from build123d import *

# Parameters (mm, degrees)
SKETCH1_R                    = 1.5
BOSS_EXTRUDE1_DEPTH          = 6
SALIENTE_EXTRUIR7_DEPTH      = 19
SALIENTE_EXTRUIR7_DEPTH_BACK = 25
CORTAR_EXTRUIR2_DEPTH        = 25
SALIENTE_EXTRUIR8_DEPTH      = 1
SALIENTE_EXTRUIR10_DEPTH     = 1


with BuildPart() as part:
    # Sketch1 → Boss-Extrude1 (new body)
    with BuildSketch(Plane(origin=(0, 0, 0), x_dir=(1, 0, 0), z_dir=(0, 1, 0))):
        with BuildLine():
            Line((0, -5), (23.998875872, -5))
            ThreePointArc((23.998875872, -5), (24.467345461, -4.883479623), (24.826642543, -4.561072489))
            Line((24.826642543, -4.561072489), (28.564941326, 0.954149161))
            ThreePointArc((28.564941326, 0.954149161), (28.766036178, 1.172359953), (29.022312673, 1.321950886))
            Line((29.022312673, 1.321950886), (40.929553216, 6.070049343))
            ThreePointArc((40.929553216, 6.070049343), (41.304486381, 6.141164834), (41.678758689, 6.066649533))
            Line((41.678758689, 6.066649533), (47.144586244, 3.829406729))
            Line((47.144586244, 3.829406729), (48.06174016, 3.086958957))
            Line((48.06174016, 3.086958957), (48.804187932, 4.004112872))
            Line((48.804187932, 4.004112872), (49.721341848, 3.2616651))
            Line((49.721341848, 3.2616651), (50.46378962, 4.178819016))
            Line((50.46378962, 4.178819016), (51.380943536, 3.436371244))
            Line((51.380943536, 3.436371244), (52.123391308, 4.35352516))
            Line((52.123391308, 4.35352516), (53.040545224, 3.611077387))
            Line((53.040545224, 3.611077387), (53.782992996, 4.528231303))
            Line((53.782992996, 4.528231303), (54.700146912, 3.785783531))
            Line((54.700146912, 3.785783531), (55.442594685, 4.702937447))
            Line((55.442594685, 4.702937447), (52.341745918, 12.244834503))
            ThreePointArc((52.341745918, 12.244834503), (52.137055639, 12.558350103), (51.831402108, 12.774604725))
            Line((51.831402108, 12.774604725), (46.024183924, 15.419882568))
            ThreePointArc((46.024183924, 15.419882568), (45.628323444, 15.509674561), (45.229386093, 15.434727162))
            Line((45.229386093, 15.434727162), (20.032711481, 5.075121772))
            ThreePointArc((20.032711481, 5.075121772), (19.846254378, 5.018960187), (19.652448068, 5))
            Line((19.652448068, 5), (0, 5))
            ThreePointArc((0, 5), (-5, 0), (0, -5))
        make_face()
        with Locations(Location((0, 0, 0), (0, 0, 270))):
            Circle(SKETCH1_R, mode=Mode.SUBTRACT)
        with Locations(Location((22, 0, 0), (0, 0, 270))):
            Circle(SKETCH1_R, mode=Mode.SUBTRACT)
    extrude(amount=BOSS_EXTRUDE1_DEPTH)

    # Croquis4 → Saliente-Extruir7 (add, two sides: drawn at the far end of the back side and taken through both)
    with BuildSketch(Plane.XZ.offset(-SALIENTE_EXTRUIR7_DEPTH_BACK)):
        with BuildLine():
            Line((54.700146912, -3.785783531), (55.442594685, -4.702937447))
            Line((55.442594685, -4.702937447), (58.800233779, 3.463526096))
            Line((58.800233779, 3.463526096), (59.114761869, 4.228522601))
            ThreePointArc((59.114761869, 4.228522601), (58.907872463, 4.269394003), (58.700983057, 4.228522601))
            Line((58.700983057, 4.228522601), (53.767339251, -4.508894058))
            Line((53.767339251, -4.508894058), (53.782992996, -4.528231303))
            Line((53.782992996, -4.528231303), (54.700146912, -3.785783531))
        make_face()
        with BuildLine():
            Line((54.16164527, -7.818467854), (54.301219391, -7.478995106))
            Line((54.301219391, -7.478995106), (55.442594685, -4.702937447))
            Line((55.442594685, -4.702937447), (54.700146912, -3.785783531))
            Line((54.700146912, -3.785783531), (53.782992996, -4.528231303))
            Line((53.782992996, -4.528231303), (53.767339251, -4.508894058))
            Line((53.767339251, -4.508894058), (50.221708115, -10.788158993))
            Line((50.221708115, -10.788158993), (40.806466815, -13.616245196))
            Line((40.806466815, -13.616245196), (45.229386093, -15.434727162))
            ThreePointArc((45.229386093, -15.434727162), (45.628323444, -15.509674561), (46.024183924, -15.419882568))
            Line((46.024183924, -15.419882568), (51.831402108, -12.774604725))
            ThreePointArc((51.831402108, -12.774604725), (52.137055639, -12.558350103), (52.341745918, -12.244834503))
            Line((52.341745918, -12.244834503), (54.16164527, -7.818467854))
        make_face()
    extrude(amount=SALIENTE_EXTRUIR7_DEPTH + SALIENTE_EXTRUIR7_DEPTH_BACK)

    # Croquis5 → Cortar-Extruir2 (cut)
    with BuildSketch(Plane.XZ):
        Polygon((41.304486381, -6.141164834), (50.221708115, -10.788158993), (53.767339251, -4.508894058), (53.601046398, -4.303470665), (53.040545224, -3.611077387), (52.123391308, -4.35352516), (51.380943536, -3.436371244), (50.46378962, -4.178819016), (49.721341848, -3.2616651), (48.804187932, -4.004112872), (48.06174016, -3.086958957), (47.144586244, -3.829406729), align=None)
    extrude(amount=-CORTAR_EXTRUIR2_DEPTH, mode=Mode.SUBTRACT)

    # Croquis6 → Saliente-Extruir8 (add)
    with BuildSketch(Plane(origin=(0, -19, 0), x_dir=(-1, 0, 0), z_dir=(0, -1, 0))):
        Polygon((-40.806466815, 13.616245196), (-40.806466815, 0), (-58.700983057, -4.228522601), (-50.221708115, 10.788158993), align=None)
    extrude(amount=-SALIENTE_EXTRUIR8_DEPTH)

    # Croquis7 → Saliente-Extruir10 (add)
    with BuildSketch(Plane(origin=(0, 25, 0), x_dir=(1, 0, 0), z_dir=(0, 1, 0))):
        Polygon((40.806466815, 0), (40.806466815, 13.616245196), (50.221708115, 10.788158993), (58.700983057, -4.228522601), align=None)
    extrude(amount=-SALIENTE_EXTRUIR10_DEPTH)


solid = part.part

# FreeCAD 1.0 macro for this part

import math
import FreeCAD as App
import Part
import Sketcher
Q = App.Units.Quantity

doc = App.newDocument("Part")
body = doc.addObject("PartDesign::Body", "Body")

# Sketch on XZ plane
sketch1 = doc.addObject("Sketcher::SketchObject", "Sketch")
body.addObject(sketch1)
sketch1.AttachmentSupport = (doc.XZ_Plane, [""])
sketch1.MapMode = "FlatFace"
sketch1.addGeometry(Part.LineSegment(App.Vector(0, 5, 0), App.Vector(24, 5, 0)), False)
sketch1.addGeometry(Part.ArcOfCircle(Part.Circle(App.Vector(24, 4, 0), App.Vector(0, 0, 1), 1), math.radians(34), math.radians(90)), False)
sketch1.addGeometry(Part.LineSegment(App.Vector(24.83, 4.56, 0), App.Vector(28.56, -0.95, 0)), False)
sketch1.addGeometry(Part.ArcOfCircle(Part.Circle(App.Vector(29.39, -0.39, 0), App.Vector(0, 0, 1), 1), math.radians(-146), math.radians(-112)), False)
sketch1.addGeometry(Part.LineSegment(App.Vector(29.02, -1.32, 0), App.Vector(40.93, -6.07, 0)), False)
sketch1.addGeometry(Part.ArcOfCircle(Part.Circle(App.Vector(41.3, -5.14, 0), App.Vector(0, 0, 1), 1), math.radians(-112), math.radians(-68)), False)
sketch1.addGeometry(Part.LineSegment(App.Vector(41.68, -6.07, 0), App.Vector(47.14, -3.83, 0)), False)
sketch1.addGeometry(Part.LineSegment(App.Vector(47.14, -3.83, 0), App.Vector(48.06, -3.09, 0)), False)
sketch1.addGeometry(Part.LineSegment(App.Vector(48.06, -3.09, 0), App.Vector(48.8, -4, 0)), False)
sketch1.addGeometry(Part.LineSegment(App.Vector(48.8, -4, 0), App.Vector(49.72, -3.26, 0)), False)
sketch1.addGeometry(Part.LineSegment(App.Vector(49.72, -3.26, 0), App.Vector(50.46, -4.18, 0)), False)
sketch1.addGeometry(Part.LineSegment(App.Vector(50.46, -4.18, 0), App.Vector(51.38, -3.44, 0)), False)
sketch1.addGeometry(Part.LineSegment(App.Vector(51.38, -3.44, 0), App.Vector(52.12, -4.35, 0)), False)
sketch1.addGeometry(Part.LineSegment(App.Vector(52.12, -4.35, 0), App.Vector(53.04, -3.61, 0)), False)
sketch1.addGeometry(Part.LineSegment(App.Vector(53.04, -3.61, 0), App.Vector(53.78, -4.53, 0)), False)
sketch1.addGeometry(Part.LineSegment(App.Vector(53.78, -4.53, 0), App.Vector(54.7, -3.79, 0)), False)
sketch1.addGeometry(Part.LineSegment(App.Vector(54.7, -3.79, 0), App.Vector(55.44, -4.7, 0)), False)
sketch1.addGeometry(Part.LineSegment(App.Vector(55.44, -4.7, 0), App.Vector(52.34, -12.24, 0)), False)
sketch1.addGeometry(Part.ArcOfCircle(Part.Circle(App.Vector(51.42, -11.86, 0), App.Vector(0, 0, 1), 1), math.radians(-66), math.radians(-22)), False)
sketch1.addGeometry(Part.LineSegment(App.Vector(51.83, -12.77, 0), App.Vector(46.02, -15.42, 0)), False)
sketch1.addGeometry(Part.ArcOfCircle(Part.Circle(App.Vector(45.61, -14.51, 0), App.Vector(0, 0, 1), 1), math.radians(-112), math.radians(-66)), False)
sketch1.addGeometry(Part.LineSegment(App.Vector(45.23, -15.43, 0), App.Vector(20.03, -5.08, 0)), False)
sketch1.addGeometry(Part.ArcOfCircle(Part.Circle(App.Vector(19.65, -6, 0), App.Vector(0, 0, 1), 1), math.radians(68), math.radians(90)), False)
sketch1.addGeometry(Part.LineSegment(App.Vector(19.65, -5, 0), App.Vector(0, -5, 0)), False)
sketch1.addGeometry(Part.ArcOfCircle(Part.Circle(App.Vector(0, 0, 0), App.Vector(0, 0, 1), 5), math.radians(90), math.radians(270)), False)
sketch1.addGeometry(Part.Circle(App.Vector(0, 0, 0), App.Vector(0, 0, 1), 1.5), False)
sketch1.addGeometry(Part.Circle(App.Vector(22, 0, 0), App.Vector(0, 0, 1), 1.5), False)
sketch1.addConstraint(Sketcher.Constraint("Tangent", 0, 2, 1, 2))
sketch1.addConstraint(Sketcher.Constraint("Tangent", 1, 1, 2, 1))
sketch1.addConstraint(Sketcher.Constraint("Tangent", 2, 2, 3, 1))
sketch1.addConstraint(Sketcher.Constraint("Tangent", 3, 2, 4, 1))
sketch1.addConstraint(Sketcher.Constraint("Tangent", 4, 2, 5, 1))
sketch1.addConstraint(Sketcher.Constraint("Tangent", 5, 2, 6, 1))
sketch1.addConstraint(Sketcher.Constraint("Coincident", 6, 2, 7, 1))
sketch1.addConstraint(Sketcher.Constraint("Coincident", 7, 2, 8, 1))
sketch1.addConstraint(Sketcher.Constraint("Coincident", 8, 2, 9, 1))
sketch1.addConstraint(Sketcher.Constraint("Coincident", 9, 2, 10, 1))
sketch1.addConstraint(Sketcher.Constraint("Coincident", 10, 2, 11, 1))
sketch1.addConstraint(Sketcher.Constraint("Coincident", 11, 2, 12, 1))
sketch1.addConstraint(Sketcher.Constraint("Coincident", 12, 2, 13, 1))
sketch1.addConstraint(Sketcher.Constraint("Coincident", 13, 2, 14, 1))
sketch1.addConstraint(Sketcher.Constraint("Coincident", 14, 2, 15, 1))
sketch1.addConstraint(Sketcher.Constraint("Coincident", 15, 2, 16, 1))
sketch1.addConstraint(Sketcher.Constraint("Coincident", 16, 2, 17, 1))
sketch1.addConstraint(Sketcher.Constraint("Tangent", 17, 2, 18, 2))
sketch1.addConstraint(Sketcher.Constraint("Tangent", 18, 1, 19, 1))
sketch1.addConstraint(Sketcher.Constraint("Tangent", 19, 2, 20, 2))
sketch1.addConstraint(Sketcher.Constraint("Tangent", 20, 1, 21, 1))
sketch1.addConstraint(Sketcher.Constraint("Tangent", 21, 2, 22, 1))
sketch1.addConstraint(Sketcher.Constraint("Tangent", 22, 2, 23, 1))
sketch1.addConstraint(Sketcher.Constraint("Tangent", 23, 2, 24, 2))
sketch1.addConstraint(Sketcher.Constraint("Tangent", 24, 1, 0, 1))
sketch1.addConstraint(Sketcher.Constraint("Horizontal", 0))
sketch1.addConstraint(Sketcher.Constraint("Horizontal", 23))
sketch1.addConstraint(Sketcher.Constraint("Coincident", 24, 3, -1, 1))
sketch1.addConstraint(Sketcher.Constraint("Coincident", 25, 3, -1, 1))
sketch1.addConstraint(Sketcher.Constraint("Equal", 1, 3))
sketch1.addConstraint(Sketcher.Constraint("Equal", 3, 5))
sketch1.addConstraint(Sketcher.Constraint("Equal", 5, 18))
sketch1.addConstraint(Sketcher.Constraint("Equal", 18, 20))
sketch1.addConstraint(Sketcher.Constraint("Equal", 20, 22))
sketch1.addConstraint(Sketcher.Constraint("Equal", 25, 26))
sketch1.addConstraint(Sketcher.Constraint("PointOnObject", 26, 3, -1))
sketch1.addConstraint(Sketcher.Constraint("Perpendicular", 7, 8))
sketch1.addConstraint(Sketcher.Constraint("Perpendicular", 8, 9))
sketch1.addConstraint(Sketcher.Constraint("Perpendicular", 9, 10))
sketch1.addConstraint(Sketcher.Constraint("Perpendicular", 10, 11))
sketch1.addConstraint(Sketcher.Constraint("Perpendicular", 11, 12))
sketch1.addConstraint(Sketcher.Constraint("Perpendicular", 12, 13))
sketch1.addConstraint(Sketcher.Constraint("Perpendicular", 13, 14))
sketch1.addConstraint(Sketcher.Constraint("Perpendicular", 14, 15))
sketch1.addConstraint(Sketcher.Constraint("Perpendicular", 15, 16))
sketch1.addConstraint(Sketcher.Constraint("Perpendicular", 17, 21))
sketch1.addConstraint(Sketcher.Constraint("Equal", 7, 8))
sketch1.addConstraint(Sketcher.Constraint("Equal", 8, 9))
sketch1.addConstraint(Sketcher.Constraint("Equal", 9, 10))
sketch1.addConstraint(Sketcher.Constraint("Equal", 10, 11))
sketch1.addConstraint(Sketcher.Constraint("Equal", 11, 12))
sketch1.addConstraint(Sketcher.Constraint("Equal", 12, 13))
sketch1.addConstraint(Sketcher.Constraint("Equal", 13, 14))
sketch1.addConstraint(Sketcher.Constraint("Equal", 14, 15))
sketch1.addConstraint(Sketcher.Constraint("Equal", 15, 16))
sketch1.addConstraint(Sketcher.Constraint("Diameter", 25, Q("3 mm")))
sketch1.addConstraint(Sketcher.Constraint("Radius", 1, Q("1 mm")))
sketch1.addConstraint(Sketcher.Constraint("Radius", 24, Q("5 mm")))
sketch1.addConstraint(Sketcher.Constraint("DistanceX", -1, 1, 26, 3, Q("22 mm")))
sketch1.addConstraint(Sketcher.Constraint("Angle", 2, Q("-55.87 deg")))
sketch1.addConstraint(Sketcher.Constraint("Angle", 4, Q("-21.74 deg")))
sketch1.addConstraint(Sketcher.Constraint("Angle", 6, Q("22.26 deg")))
sketch1.addConstraint(Sketcher.Constraint("Angle", 17, Q("-112.35 deg")))
sketch1.addConstraint(Sketcher.Constraint("Angle", 19, Q("-155.51 deg")))
sketch1.addConstraint(Sketcher.Constraint("Distance", 7, Q("1.18 mm")))
sketch1.addConstraint(Sketcher.Constraint("DistanceX", 23, 2, 23, 1, Q("19.652448 mm")))
sketch1.addConstraint(Sketcher.Constraint("DistanceY", 5, 3, 3, 3, Q("4.748098 mm")))
sketch1.addConstraint(Sketcher.Constraint("DistanceX", 5, 3, 20, 3, Q("4.309701 mm")))
sketch1.addConstraint(Sketcher.Constraint("DistanceX", 22, 3, 5, 3, Q("21.6475 mm")))
sketch1.addConstraint(Sketcher.Constraint("DistanceX", 1, 1, 2, 2, Q("3.738299 mm")))
sketch1.addConstraint(Sketcher.Constraint("DistanceX", 6, 2, 8, 2, Q("1.659602 mm")))
sketch1.addConstraint(Sketcher.Constraint("DistanceY", 18, 3, -1, 1, Q("11.864571 mm")))
pad1 = doc.addObject("PartDesign::Pad", "Pad")
body.addObject(pad1)
pad1.Profile = sketch1
pad1.Length = 6
pad1.Reversed = True

# Sketch on XZ plane
sketch2 = doc.addObject("Sketcher::SketchObject", "Sketch001")
body.addObject(sketch2)
sketch2.AttachmentSupport = (doc.XZ_Plane, [""])
sketch2.MapMode = "FlatFace"
sketch2.addGeometry(Part.LineSegment(App.Vector(55.44, -4.7, 0), App.Vector(58.8, 3.46, 0)), False)
sketch2.addGeometry(Part.LineSegment(App.Vector(58.8, 3.46, 0), App.Vector(59.11, 4.23, 0)), False)
sketch2.addGeometry(Part.ArcOfCircle(Part.Circle(App.Vector(58.91, 3.73, 0), App.Vector(0, 0, 1), 0.54), math.radians(68), math.radians(112)), False)
sketch2.addGeometry(Part.LineSegment(App.Vector(58.7, 4.23, 0), App.Vector(53.77, -4.51, 0)), False)
sketch2.addGeometry(Part.LineSegment(App.Vector(53.77, -4.51, 0), App.Vector(50.22, -10.79, 0)), False)
sketch2.addGeometry(Part.LineSegment(App.Vector(50.22, -10.79, 0), App.Vector(40.81, -13.62, 0)), False)
sketch2.addGeometry(Part.LineSegment(App.Vector(40.81, -13.62, 0), App.Vector(45.23, -15.43, 0)), False)
sketch2.addGeometry(Part.ArcOfCircle(Part.Circle(App.Vector(45.61, -14.51, 0), App.Vector(0, 0, 1), 1), math.radians(-112), math.radians(-66)), False)
sketch2.addGeometry(Part.LineSegment(App.Vector(46.02, -15.42, 0), App.Vector(51.83, -12.77, 0)), False)
sketch2.addGeometry(Part.ArcOfCircle(Part.Circle(App.Vector(51.42, -11.86, 0), App.Vector(0, 0, 1), 1), math.radians(-66), math.radians(-22)), False)
sketch2.addGeometry(Part.LineSegment(App.Vector(52.34, -12.24, 0), App.Vector(54.16, -7.82, 0)), False)
sketch2.addGeometry(Part.LineSegment(App.Vector(54.16, -7.82, 0), App.Vector(54.3, -7.48, 0)), False)
sketch2.addGeometry(Part.LineSegment(App.Vector(54.3, -7.48, 0), App.Vector(55.44, -4.7, 0)), False)
sketch2.addConstraint(Sketcher.Constraint("Coincident", 0, 2, 1, 1))
sketch2.addConstraint(Sketcher.Constraint("Coincident", 1, 2, 2, 1))
sketch2.addConstraint(Sketcher.Constraint("Coincident", 2, 2, 3, 1))
sketch2.addConstraint(Sketcher.Constraint("Coincident", 3, 2, 4, 1))
sketch2.addConstraint(Sketcher.Constraint("Coincident", 4, 2, 5, 1))
sketch2.addConstraint(Sketcher.Constraint("Coincident", 5, 2, 6, 1))
sketch2.addConstraint(Sketcher.Constraint("Tangent", 6, 2, 7, 1))
sketch2.addConstraint(Sketcher.Constraint("Tangent", 7, 2, 8, 1))
sketch2.addConstraint(Sketcher.Constraint("Tangent", 8, 2, 9, 1))
sketch2.addConstraint(Sketcher.Constraint("Tangent", 9, 2, 10, 1))
sketch2.addConstraint(Sketcher.Constraint("Coincident", 10, 2, 11, 1))
sketch2.addConstraint(Sketcher.Constraint("Coincident", 11, 2, 12, 1))
sketch2.addConstraint(Sketcher.Constraint("Coincident", 12, 2, 0, 1))
sketch2.addConstraint(Sketcher.Constraint("Equal", 7, 9))
sketch2.addConstraint(Sketcher.Constraint("Parallel", 0, 1))
sketch2.addConstraint(Sketcher.Constraint("Parallel", 3, 4))
sketch2.addConstraint(Sketcher.Constraint("Perpendicular", 1, 6))
sketch2.addConstraint(Sketcher.Constraint("Perpendicular", 6, 10))
sketch2.addConstraint(Sketcher.Constraint("Parallel", 10, 11))
sketch2.addConstraint(Sketcher.Constraint("Parallel", 11, 12))
sketch2.addConstraint(Sketcher.Constraint("Horizontal", 1, 2, 2, 2))
sketch2.addConstraint(Sketcher.Constraint("Radius", 7, Q("1 mm")))
sketch2.addConstraint(Sketcher.Constraint("Angle", 0, Q("67.65 deg")))
sketch2.addConstraint(Sketcher.Constraint("Angle", 8, Q("24.49 deg")))
sketch2.addConstraint(Sketcher.Constraint("Radius", 2, Q("0.544069 mm")))
sketch2.addConstraint(Sketcher.Constraint("DistanceY", 0, 2, 2, 3, Q("0.261799 mm")))
sketch2.addConstraint(Sketcher.Constraint("DistanceX", 5, 2, 9, 3, Q("10.610401 mm")))
sketch2.addConstraint(Sketcher.Constraint("DistanceX", 9, 2, 10, 2, Q("1.819899 mm")))
sketch2.addConstraint(Sketcher.Constraint("DistanceY", 11, 2, 3, 2, Q("2.970101 mm")))
sketch2.addConstraint(Sketcher.Constraint("Distance", 0, Q("8.829772 mm")))
sketch2.addConstraint(Sketcher.Constraint("Distance", 4, Q("7.211149 mm")))
sketch2.addConstraint(Sketcher.Constraint("Distance", 5, Q("9.830811 mm")))
sketch2.addConstraint(Sketcher.Constraint("Distance", 12, Q("3.001539 mm")))
sketch2.addConstraint(Sketcher.Constraint("DistanceX", -1, 1, 7, 3, Q("45.60965 mm")))
sketch2.addConstraint(Sketcher.Constraint("DistanceY", 7, 3, -1, 1, Q("14.509849 mm")))
sketch2.addConstraint(Sketcher.Constraint("DistanceY", 9, 3, -1, 1, Q("11.864571 mm")))
sketch2.addConstraint(Sketcher.Constraint("DistanceX", -1, 1, 1, 2, Q("59.114762 mm")))
sketch2.addConstraint(Sketcher.Constraint("DistanceX", -1, 1, 3, 2, Q("53.767339 mm")))
pad2 = doc.addObject("PartDesign::Pad", "Pad001")
body.addObject(pad2)
pad2.Profile = sketch2
pad2.Type = "TwoLengths"
pad2.Length = 19
pad2.Length2 = 25

# Sketch on XZ plane
sketch3 = doc.addObject("Sketcher::SketchObject", "Sketch002")
body.addObject(sketch3)
sketch3.AttachmentSupport = (doc.XZ_Plane, [""])
sketch3.MapMode = "FlatFace"
sketch3.addGeometry(Part.LineSegment(App.Vector(41.3, -6.14, 0), App.Vector(50.22, -10.79, 0)), False)
sketch3.addGeometry(Part.LineSegment(App.Vector(50.22, -10.79, 0), App.Vector(53.77, -4.51, 0)), False)
sketch3.addGeometry(Part.LineSegment(App.Vector(53.77, -4.51, 0), App.Vector(53.6, -4.3, 0)), False)
sketch3.addGeometry(Part.LineSegment(App.Vector(53.6, -4.3, 0), App.Vector(53.04, -3.61, 0)), False)
sketch3.addGeometry(Part.LineSegment(App.Vector(53.04, -3.61, 0), App.Vector(52.12, -4.35, 0)), False)
sketch3.addGeometry(Part.LineSegment(App.Vector(52.12, -4.35, 0), App.Vector(51.38, -3.44, 0)), False)
sketch3.addGeometry(Part.LineSegment(App.Vector(51.38, -3.44, 0), App.Vector(50.46, -4.18, 0)), False)
sketch3.addGeometry(Part.LineSegment(App.Vector(50.46, -4.18, 0), App.Vector(49.72, -3.26, 0)), False)
sketch3.addGeometry(Part.LineSegment(App.Vector(49.72, -3.26, 0), App.Vector(48.8, -4, 0)), False)
sketch3.addGeometry(Part.LineSegment(App.Vector(48.8, -4, 0), App.Vector(48.06, -3.09, 0)), False)
sketch3.addGeometry(Part.LineSegment(App.Vector(48.06, -3.09, 0), App.Vector(47.14, -3.83, 0)), False)
sketch3.addGeometry(Part.LineSegment(App.Vector(47.14, -3.83, 0), App.Vector(41.3, -6.14, 0)), False)
sketch3.addConstraint(Sketcher.Constraint("Coincident", 0, 2, 1, 1))
sketch3.addConstraint(Sketcher.Constraint("Coincident", 1, 2, 2, 1))
sketch3.addConstraint(Sketcher.Constraint("Coincident", 2, 2, 3, 1))
sketch3.addConstraint(Sketcher.Constraint("Coincident", 3, 2, 4, 1))
sketch3.addConstraint(Sketcher.Constraint("Coincident", 4, 2, 5, 1))
sketch3.addConstraint(Sketcher.Constraint("Coincident", 5, 2, 6, 1))
sketch3.addConstraint(Sketcher.Constraint("Coincident", 6, 2, 7, 1))
sketch3.addConstraint(Sketcher.Constraint("Coincident", 7, 2, 8, 1))
sketch3.addConstraint(Sketcher.Constraint("Coincident", 8, 2, 9, 1))
sketch3.addConstraint(Sketcher.Constraint("Coincident", 9, 2, 10, 1))
sketch3.addConstraint(Sketcher.Constraint("Coincident", 10, 2, 11, 1))
sketch3.addConstraint(Sketcher.Constraint("Coincident", 11, 2, 0, 1))
sketch3.addConstraint(Sketcher.Constraint("Parallel", 2, 3))
sketch3.addConstraint(Sketcher.Constraint("Perpendicular", 3, 4))
sketch3.addConstraint(Sketcher.Constraint("Perpendicular", 4, 5))
sketch3.addConstraint(Sketcher.Constraint("Perpendicular", 5, 6))
sketch3.addConstraint(Sketcher.Constraint("Perpendicular", 6, 7))
sketch3.addConstraint(Sketcher.Constraint("Perpendicular", 7, 8))
sketch3.addConstraint(Sketcher.Constraint("Perpendicular", 8, 9))
sketch3.addConstraint(Sketcher.Constraint("Perpendicular", 9, 10))
sketch3.addConstraint(Sketcher.Constraint("Equal", 4, 5))
sketch3.addConstraint(Sketcher.Constraint("Equal", 5, 6))
sketch3.addConstraint(Sketcher.Constraint("Equal", 6, 7))
sketch3.addConstraint(Sketcher.Constraint("Equal", 7, 8))
sketch3.addConstraint(Sketcher.Constraint("Equal", 8, 9))
sketch3.addConstraint(Sketcher.Constraint("Equal", 9, 10))
sketch3.addConstraint(Sketcher.Constraint("Distance", 4, Q("1.18 mm")))
sketch3.addConstraint(Sketcher.Constraint("DistanceX", 3, 2, 2, 2, Q("0.560501 mm")))
sketch3.addConstraint(Sketcher.Constraint("DistanceX", 5, 2, 3, 2, Q("1.659602 mm")))
sketch3.addConstraint(Sketcher.Constraint("DistanceX", 11, 2, 10, 2, Q("5.8401 mm")))
sketch3.addConstraint(Sketcher.Constraint("DistanceY", 11, 2, 7, 2, Q("2.8795 mm")))
sketch3.addConstraint(Sketcher.Constraint("Distance", 1, Q("7.211149 mm")))
sketch3.addConstraint(Sketcher.Constraint("DistanceX", -1, 1, 0, 2, Q("50.221708 mm")))
sketch3.addConstraint(Sketcher.Constraint("DistanceY", 0, 2, -1, 1, Q("10.788159 mm")))
sketch3.addConstraint(Sketcher.Constraint("DistanceX", -1, 1, 1, 2, Q("53.767339 mm")))
sketch3.addConstraint(Sketcher.Constraint("DistanceY", 2, 2, -1, 1, Q("4.303471 mm")))
pocket1 = doc.addObject("PartDesign::Pocket", "Pocket")
body.addObject(pocket1)
pocket1.Profile = sketch3
pocket1.Length = 25

# Sketch on XZ plane
sketch4 = doc.addObject("Sketcher::SketchObject", "Sketch003")
body.addObject(sketch4)
sketch4.AttachmentSupport = (doc.XZ_Plane, [""])
sketch4.MapMode = "FlatFace"
sketch4.AttachmentOffset = App.Placement(App.Vector(0, 0, 19), App.Rotation())
sketch4.addGeometry(Part.LineSegment(App.Vector(41, 0, 0), App.Vector(41, -14, 0)), False)
sketch4.addGeometry(Part.LineSegment(App.Vector(41, -14, 0), App.Vector(50, -11, 0)), False)
sketch4.addGeometry(Part.LineSegment(App.Vector(50, -11, 0), App.Vector(59, 4, 0)), False)
sketch4.addGeometry(Part.LineSegment(App.Vector(59, 4, 0), App.Vector(41, 0, 0)), False)
sketch4.addConstraint(Sketcher.Constraint("Coincident", 0, 2, 1, 1))
sketch4.addConstraint(Sketcher.Constraint("Coincident", 1, 2, 2, 1))
sketch4.addConstraint(Sketcher.Constraint("Coincident", 2, 2, 3, 1))
sketch4.addConstraint(Sketcher.Constraint("Coincident", 3, 2, 0, 1))
sketch4.addConstraint(Sketcher.Constraint("Vertical", 0))
sketch4.addConstraint(Sketcher.Constraint("PointOnObject", 3, 2, -1))
sketch4.addConstraint(Sketcher.Constraint("Distance", 1, Q("9.830811 mm")))
sketch4.addConstraint(Sketcher.Constraint("DistanceY", 0, 2, 0, 1, Q("13.616245 mm")))
sketch4.addConstraint(Sketcher.Constraint("DistanceX", -1, 1, 1, 2, Q("50.221708 mm")))
sketch4.addConstraint(Sketcher.Constraint("DistanceY", 1, 2, -1, 1, Q("10.788159 mm")))
sketch4.addConstraint(Sketcher.Constraint("DistanceY", 1, 2, 2, 2, Q("15.016682 mm")))
sketch4.addConstraint(Sketcher.Constraint("Distance", 2, Q("17.245255 mm")))
pad3 = doc.addObject("PartDesign::Pad", "Pad002")
body.addObject(pad3)
pad3.Profile = sketch4
pad3.Length = 1
pad3.Reversed = True

# Sketch on XZ plane
sketch5 = doc.addObject("Sketcher::SketchObject", "Sketch004")
body.addObject(sketch5)
sketch5.AttachmentSupport = (doc.XZ_Plane, [""])
sketch5.MapMode = "FlatFace"
sketch5.AttachmentOffset = App.Placement(App.Vector(0, 0, -25), App.Rotation())
sketch5.addGeometry(Part.LineSegment(App.Vector(41, -14, 0), App.Vector(41, 0, 0)), False)
sketch5.addGeometry(Part.LineSegment(App.Vector(41, 0, 0), App.Vector(59, 4, 0)), False)
sketch5.addGeometry(Part.LineSegment(App.Vector(59, 4, 0), App.Vector(50, -11, 0)), False)
sketch5.addGeometry(Part.LineSegment(App.Vector(50, -11, 0), App.Vector(41, -14, 0)), False)
sketch5.addConstraint(Sketcher.Constraint("Coincident", 0, 2, 1, 1))
sketch5.addConstraint(Sketcher.Constraint("Coincident", 1, 2, 2, 1))
sketch5.addConstraint(Sketcher.Constraint("Coincident", 2, 2, 3, 1))
sketch5.addConstraint(Sketcher.Constraint("Coincident", 3, 2, 0, 1))
sketch5.addConstraint(Sketcher.Constraint("Vertical", 0))
sketch5.addConstraint(Sketcher.Constraint("PointOnObject", 0, 2, -1))
sketch5.addConstraint(Sketcher.Constraint("Distance", 3, Q("9.830811 mm")))
sketch5.addConstraint(Sketcher.Constraint("DistanceY", 0, 1, 0, 2, Q("13.616245 mm")))
sketch5.addConstraint(Sketcher.Constraint("DistanceX", -1, 1, 2, 2, Q("50.221708 mm")))
sketch5.addConstraint(Sketcher.Constraint("DistanceY", 2, 2, -1, 1, Q("10.788159 mm")))
sketch5.addConstraint(Sketcher.Constraint("DistanceY", 2, 2, 1, 2, Q("15.016682 mm")))
sketch5.addConstraint(Sketcher.Constraint("Distance", 1, Q("18.387336 mm")))
pad4 = doc.addObject("PartDesign::Pad", "Pad003")
body.addObject(pad4)
pad4.Profile = sketch5
pad4.Length = 1

doc.recompute()
